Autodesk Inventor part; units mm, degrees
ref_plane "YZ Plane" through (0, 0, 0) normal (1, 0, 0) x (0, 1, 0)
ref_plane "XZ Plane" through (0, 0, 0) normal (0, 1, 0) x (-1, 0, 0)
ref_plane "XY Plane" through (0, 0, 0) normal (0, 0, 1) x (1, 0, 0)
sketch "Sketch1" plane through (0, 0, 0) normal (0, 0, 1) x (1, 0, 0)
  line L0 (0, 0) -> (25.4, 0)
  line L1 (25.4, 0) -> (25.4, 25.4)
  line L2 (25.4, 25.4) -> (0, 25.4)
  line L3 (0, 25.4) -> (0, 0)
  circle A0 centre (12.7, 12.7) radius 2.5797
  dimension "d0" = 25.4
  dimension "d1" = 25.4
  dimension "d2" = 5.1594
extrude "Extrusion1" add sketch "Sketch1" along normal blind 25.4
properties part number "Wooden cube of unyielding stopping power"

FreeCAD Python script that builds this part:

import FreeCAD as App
import Part
import Sketcher

V = App.Vector
Q = App.Units.Quantity

doc = App.newDocument("Part")
body = doc.addObject("PartDesign::Body", "Body")

sketch1 = doc.addObject("Sketcher::SketchObject", "Sketch")
body.addObject(sketch1)
sketch1.AttachmentSupport = (doc.XY_Plane, [""])
sketch1.MapMode = "FlatFace"
sketch1.addGeometry([
    Part.LineSegment(V(0, 25.4, 0), V(0, 0, 0)),
    Part.LineSegment(V(0, 0, 0), V(25.4, 0, 0)),
    Part.LineSegment(V(25.4, 0, 0), V(25.4, 25.4, 0)),
    Part.LineSegment(V(25.4, 25.4, 0), V(0, 25.4, 0)),
    Part.Circle(V(12.7, 12.7, 0), V(0, 0, 1), 2.6),
], False)
sketch1.addConstraint([
    Sketcher.Constraint("Coincident", 0, 2, 1, 1),
    Sketcher.Constraint("Coincident", 1, 2, 2, 1),
    Sketcher.Constraint("Coincident", 2, 2, 3, 1),
    Sketcher.Constraint("Coincident", 3, 2, 0, 1),
    Sketcher.Constraint("Vertical", 0),
    Sketcher.Constraint("Horizontal", 1),
    Sketcher.Constraint("Vertical", 2),
    Sketcher.Constraint("Horizontal", 3),
    Sketcher.Constraint("Coincident", 0, 2, -1, 1),
    Sketcher.Constraint("Equal", 3, 0),
    Sketcher.Constraint("DistanceX", 1, 1, 1, 2, Q("1 in")),
    Sketcher.Constraint("Diameter", 4, Q("0.203126 in")),
    Sketcher.Constraint("DistanceX", -1, 1, 4, 3, Q("0.5 in")),
    Sketcher.Constraint("DistanceY", -1, 1, 4, 3, Q("0.5 in")),
])
pad1 = doc.addObject("PartDesign::Pad", "Pad")
body.addObject(pad1)
pad1.Profile = sketch1
pad1.Length = Q("1 in")

doc.recompute()
